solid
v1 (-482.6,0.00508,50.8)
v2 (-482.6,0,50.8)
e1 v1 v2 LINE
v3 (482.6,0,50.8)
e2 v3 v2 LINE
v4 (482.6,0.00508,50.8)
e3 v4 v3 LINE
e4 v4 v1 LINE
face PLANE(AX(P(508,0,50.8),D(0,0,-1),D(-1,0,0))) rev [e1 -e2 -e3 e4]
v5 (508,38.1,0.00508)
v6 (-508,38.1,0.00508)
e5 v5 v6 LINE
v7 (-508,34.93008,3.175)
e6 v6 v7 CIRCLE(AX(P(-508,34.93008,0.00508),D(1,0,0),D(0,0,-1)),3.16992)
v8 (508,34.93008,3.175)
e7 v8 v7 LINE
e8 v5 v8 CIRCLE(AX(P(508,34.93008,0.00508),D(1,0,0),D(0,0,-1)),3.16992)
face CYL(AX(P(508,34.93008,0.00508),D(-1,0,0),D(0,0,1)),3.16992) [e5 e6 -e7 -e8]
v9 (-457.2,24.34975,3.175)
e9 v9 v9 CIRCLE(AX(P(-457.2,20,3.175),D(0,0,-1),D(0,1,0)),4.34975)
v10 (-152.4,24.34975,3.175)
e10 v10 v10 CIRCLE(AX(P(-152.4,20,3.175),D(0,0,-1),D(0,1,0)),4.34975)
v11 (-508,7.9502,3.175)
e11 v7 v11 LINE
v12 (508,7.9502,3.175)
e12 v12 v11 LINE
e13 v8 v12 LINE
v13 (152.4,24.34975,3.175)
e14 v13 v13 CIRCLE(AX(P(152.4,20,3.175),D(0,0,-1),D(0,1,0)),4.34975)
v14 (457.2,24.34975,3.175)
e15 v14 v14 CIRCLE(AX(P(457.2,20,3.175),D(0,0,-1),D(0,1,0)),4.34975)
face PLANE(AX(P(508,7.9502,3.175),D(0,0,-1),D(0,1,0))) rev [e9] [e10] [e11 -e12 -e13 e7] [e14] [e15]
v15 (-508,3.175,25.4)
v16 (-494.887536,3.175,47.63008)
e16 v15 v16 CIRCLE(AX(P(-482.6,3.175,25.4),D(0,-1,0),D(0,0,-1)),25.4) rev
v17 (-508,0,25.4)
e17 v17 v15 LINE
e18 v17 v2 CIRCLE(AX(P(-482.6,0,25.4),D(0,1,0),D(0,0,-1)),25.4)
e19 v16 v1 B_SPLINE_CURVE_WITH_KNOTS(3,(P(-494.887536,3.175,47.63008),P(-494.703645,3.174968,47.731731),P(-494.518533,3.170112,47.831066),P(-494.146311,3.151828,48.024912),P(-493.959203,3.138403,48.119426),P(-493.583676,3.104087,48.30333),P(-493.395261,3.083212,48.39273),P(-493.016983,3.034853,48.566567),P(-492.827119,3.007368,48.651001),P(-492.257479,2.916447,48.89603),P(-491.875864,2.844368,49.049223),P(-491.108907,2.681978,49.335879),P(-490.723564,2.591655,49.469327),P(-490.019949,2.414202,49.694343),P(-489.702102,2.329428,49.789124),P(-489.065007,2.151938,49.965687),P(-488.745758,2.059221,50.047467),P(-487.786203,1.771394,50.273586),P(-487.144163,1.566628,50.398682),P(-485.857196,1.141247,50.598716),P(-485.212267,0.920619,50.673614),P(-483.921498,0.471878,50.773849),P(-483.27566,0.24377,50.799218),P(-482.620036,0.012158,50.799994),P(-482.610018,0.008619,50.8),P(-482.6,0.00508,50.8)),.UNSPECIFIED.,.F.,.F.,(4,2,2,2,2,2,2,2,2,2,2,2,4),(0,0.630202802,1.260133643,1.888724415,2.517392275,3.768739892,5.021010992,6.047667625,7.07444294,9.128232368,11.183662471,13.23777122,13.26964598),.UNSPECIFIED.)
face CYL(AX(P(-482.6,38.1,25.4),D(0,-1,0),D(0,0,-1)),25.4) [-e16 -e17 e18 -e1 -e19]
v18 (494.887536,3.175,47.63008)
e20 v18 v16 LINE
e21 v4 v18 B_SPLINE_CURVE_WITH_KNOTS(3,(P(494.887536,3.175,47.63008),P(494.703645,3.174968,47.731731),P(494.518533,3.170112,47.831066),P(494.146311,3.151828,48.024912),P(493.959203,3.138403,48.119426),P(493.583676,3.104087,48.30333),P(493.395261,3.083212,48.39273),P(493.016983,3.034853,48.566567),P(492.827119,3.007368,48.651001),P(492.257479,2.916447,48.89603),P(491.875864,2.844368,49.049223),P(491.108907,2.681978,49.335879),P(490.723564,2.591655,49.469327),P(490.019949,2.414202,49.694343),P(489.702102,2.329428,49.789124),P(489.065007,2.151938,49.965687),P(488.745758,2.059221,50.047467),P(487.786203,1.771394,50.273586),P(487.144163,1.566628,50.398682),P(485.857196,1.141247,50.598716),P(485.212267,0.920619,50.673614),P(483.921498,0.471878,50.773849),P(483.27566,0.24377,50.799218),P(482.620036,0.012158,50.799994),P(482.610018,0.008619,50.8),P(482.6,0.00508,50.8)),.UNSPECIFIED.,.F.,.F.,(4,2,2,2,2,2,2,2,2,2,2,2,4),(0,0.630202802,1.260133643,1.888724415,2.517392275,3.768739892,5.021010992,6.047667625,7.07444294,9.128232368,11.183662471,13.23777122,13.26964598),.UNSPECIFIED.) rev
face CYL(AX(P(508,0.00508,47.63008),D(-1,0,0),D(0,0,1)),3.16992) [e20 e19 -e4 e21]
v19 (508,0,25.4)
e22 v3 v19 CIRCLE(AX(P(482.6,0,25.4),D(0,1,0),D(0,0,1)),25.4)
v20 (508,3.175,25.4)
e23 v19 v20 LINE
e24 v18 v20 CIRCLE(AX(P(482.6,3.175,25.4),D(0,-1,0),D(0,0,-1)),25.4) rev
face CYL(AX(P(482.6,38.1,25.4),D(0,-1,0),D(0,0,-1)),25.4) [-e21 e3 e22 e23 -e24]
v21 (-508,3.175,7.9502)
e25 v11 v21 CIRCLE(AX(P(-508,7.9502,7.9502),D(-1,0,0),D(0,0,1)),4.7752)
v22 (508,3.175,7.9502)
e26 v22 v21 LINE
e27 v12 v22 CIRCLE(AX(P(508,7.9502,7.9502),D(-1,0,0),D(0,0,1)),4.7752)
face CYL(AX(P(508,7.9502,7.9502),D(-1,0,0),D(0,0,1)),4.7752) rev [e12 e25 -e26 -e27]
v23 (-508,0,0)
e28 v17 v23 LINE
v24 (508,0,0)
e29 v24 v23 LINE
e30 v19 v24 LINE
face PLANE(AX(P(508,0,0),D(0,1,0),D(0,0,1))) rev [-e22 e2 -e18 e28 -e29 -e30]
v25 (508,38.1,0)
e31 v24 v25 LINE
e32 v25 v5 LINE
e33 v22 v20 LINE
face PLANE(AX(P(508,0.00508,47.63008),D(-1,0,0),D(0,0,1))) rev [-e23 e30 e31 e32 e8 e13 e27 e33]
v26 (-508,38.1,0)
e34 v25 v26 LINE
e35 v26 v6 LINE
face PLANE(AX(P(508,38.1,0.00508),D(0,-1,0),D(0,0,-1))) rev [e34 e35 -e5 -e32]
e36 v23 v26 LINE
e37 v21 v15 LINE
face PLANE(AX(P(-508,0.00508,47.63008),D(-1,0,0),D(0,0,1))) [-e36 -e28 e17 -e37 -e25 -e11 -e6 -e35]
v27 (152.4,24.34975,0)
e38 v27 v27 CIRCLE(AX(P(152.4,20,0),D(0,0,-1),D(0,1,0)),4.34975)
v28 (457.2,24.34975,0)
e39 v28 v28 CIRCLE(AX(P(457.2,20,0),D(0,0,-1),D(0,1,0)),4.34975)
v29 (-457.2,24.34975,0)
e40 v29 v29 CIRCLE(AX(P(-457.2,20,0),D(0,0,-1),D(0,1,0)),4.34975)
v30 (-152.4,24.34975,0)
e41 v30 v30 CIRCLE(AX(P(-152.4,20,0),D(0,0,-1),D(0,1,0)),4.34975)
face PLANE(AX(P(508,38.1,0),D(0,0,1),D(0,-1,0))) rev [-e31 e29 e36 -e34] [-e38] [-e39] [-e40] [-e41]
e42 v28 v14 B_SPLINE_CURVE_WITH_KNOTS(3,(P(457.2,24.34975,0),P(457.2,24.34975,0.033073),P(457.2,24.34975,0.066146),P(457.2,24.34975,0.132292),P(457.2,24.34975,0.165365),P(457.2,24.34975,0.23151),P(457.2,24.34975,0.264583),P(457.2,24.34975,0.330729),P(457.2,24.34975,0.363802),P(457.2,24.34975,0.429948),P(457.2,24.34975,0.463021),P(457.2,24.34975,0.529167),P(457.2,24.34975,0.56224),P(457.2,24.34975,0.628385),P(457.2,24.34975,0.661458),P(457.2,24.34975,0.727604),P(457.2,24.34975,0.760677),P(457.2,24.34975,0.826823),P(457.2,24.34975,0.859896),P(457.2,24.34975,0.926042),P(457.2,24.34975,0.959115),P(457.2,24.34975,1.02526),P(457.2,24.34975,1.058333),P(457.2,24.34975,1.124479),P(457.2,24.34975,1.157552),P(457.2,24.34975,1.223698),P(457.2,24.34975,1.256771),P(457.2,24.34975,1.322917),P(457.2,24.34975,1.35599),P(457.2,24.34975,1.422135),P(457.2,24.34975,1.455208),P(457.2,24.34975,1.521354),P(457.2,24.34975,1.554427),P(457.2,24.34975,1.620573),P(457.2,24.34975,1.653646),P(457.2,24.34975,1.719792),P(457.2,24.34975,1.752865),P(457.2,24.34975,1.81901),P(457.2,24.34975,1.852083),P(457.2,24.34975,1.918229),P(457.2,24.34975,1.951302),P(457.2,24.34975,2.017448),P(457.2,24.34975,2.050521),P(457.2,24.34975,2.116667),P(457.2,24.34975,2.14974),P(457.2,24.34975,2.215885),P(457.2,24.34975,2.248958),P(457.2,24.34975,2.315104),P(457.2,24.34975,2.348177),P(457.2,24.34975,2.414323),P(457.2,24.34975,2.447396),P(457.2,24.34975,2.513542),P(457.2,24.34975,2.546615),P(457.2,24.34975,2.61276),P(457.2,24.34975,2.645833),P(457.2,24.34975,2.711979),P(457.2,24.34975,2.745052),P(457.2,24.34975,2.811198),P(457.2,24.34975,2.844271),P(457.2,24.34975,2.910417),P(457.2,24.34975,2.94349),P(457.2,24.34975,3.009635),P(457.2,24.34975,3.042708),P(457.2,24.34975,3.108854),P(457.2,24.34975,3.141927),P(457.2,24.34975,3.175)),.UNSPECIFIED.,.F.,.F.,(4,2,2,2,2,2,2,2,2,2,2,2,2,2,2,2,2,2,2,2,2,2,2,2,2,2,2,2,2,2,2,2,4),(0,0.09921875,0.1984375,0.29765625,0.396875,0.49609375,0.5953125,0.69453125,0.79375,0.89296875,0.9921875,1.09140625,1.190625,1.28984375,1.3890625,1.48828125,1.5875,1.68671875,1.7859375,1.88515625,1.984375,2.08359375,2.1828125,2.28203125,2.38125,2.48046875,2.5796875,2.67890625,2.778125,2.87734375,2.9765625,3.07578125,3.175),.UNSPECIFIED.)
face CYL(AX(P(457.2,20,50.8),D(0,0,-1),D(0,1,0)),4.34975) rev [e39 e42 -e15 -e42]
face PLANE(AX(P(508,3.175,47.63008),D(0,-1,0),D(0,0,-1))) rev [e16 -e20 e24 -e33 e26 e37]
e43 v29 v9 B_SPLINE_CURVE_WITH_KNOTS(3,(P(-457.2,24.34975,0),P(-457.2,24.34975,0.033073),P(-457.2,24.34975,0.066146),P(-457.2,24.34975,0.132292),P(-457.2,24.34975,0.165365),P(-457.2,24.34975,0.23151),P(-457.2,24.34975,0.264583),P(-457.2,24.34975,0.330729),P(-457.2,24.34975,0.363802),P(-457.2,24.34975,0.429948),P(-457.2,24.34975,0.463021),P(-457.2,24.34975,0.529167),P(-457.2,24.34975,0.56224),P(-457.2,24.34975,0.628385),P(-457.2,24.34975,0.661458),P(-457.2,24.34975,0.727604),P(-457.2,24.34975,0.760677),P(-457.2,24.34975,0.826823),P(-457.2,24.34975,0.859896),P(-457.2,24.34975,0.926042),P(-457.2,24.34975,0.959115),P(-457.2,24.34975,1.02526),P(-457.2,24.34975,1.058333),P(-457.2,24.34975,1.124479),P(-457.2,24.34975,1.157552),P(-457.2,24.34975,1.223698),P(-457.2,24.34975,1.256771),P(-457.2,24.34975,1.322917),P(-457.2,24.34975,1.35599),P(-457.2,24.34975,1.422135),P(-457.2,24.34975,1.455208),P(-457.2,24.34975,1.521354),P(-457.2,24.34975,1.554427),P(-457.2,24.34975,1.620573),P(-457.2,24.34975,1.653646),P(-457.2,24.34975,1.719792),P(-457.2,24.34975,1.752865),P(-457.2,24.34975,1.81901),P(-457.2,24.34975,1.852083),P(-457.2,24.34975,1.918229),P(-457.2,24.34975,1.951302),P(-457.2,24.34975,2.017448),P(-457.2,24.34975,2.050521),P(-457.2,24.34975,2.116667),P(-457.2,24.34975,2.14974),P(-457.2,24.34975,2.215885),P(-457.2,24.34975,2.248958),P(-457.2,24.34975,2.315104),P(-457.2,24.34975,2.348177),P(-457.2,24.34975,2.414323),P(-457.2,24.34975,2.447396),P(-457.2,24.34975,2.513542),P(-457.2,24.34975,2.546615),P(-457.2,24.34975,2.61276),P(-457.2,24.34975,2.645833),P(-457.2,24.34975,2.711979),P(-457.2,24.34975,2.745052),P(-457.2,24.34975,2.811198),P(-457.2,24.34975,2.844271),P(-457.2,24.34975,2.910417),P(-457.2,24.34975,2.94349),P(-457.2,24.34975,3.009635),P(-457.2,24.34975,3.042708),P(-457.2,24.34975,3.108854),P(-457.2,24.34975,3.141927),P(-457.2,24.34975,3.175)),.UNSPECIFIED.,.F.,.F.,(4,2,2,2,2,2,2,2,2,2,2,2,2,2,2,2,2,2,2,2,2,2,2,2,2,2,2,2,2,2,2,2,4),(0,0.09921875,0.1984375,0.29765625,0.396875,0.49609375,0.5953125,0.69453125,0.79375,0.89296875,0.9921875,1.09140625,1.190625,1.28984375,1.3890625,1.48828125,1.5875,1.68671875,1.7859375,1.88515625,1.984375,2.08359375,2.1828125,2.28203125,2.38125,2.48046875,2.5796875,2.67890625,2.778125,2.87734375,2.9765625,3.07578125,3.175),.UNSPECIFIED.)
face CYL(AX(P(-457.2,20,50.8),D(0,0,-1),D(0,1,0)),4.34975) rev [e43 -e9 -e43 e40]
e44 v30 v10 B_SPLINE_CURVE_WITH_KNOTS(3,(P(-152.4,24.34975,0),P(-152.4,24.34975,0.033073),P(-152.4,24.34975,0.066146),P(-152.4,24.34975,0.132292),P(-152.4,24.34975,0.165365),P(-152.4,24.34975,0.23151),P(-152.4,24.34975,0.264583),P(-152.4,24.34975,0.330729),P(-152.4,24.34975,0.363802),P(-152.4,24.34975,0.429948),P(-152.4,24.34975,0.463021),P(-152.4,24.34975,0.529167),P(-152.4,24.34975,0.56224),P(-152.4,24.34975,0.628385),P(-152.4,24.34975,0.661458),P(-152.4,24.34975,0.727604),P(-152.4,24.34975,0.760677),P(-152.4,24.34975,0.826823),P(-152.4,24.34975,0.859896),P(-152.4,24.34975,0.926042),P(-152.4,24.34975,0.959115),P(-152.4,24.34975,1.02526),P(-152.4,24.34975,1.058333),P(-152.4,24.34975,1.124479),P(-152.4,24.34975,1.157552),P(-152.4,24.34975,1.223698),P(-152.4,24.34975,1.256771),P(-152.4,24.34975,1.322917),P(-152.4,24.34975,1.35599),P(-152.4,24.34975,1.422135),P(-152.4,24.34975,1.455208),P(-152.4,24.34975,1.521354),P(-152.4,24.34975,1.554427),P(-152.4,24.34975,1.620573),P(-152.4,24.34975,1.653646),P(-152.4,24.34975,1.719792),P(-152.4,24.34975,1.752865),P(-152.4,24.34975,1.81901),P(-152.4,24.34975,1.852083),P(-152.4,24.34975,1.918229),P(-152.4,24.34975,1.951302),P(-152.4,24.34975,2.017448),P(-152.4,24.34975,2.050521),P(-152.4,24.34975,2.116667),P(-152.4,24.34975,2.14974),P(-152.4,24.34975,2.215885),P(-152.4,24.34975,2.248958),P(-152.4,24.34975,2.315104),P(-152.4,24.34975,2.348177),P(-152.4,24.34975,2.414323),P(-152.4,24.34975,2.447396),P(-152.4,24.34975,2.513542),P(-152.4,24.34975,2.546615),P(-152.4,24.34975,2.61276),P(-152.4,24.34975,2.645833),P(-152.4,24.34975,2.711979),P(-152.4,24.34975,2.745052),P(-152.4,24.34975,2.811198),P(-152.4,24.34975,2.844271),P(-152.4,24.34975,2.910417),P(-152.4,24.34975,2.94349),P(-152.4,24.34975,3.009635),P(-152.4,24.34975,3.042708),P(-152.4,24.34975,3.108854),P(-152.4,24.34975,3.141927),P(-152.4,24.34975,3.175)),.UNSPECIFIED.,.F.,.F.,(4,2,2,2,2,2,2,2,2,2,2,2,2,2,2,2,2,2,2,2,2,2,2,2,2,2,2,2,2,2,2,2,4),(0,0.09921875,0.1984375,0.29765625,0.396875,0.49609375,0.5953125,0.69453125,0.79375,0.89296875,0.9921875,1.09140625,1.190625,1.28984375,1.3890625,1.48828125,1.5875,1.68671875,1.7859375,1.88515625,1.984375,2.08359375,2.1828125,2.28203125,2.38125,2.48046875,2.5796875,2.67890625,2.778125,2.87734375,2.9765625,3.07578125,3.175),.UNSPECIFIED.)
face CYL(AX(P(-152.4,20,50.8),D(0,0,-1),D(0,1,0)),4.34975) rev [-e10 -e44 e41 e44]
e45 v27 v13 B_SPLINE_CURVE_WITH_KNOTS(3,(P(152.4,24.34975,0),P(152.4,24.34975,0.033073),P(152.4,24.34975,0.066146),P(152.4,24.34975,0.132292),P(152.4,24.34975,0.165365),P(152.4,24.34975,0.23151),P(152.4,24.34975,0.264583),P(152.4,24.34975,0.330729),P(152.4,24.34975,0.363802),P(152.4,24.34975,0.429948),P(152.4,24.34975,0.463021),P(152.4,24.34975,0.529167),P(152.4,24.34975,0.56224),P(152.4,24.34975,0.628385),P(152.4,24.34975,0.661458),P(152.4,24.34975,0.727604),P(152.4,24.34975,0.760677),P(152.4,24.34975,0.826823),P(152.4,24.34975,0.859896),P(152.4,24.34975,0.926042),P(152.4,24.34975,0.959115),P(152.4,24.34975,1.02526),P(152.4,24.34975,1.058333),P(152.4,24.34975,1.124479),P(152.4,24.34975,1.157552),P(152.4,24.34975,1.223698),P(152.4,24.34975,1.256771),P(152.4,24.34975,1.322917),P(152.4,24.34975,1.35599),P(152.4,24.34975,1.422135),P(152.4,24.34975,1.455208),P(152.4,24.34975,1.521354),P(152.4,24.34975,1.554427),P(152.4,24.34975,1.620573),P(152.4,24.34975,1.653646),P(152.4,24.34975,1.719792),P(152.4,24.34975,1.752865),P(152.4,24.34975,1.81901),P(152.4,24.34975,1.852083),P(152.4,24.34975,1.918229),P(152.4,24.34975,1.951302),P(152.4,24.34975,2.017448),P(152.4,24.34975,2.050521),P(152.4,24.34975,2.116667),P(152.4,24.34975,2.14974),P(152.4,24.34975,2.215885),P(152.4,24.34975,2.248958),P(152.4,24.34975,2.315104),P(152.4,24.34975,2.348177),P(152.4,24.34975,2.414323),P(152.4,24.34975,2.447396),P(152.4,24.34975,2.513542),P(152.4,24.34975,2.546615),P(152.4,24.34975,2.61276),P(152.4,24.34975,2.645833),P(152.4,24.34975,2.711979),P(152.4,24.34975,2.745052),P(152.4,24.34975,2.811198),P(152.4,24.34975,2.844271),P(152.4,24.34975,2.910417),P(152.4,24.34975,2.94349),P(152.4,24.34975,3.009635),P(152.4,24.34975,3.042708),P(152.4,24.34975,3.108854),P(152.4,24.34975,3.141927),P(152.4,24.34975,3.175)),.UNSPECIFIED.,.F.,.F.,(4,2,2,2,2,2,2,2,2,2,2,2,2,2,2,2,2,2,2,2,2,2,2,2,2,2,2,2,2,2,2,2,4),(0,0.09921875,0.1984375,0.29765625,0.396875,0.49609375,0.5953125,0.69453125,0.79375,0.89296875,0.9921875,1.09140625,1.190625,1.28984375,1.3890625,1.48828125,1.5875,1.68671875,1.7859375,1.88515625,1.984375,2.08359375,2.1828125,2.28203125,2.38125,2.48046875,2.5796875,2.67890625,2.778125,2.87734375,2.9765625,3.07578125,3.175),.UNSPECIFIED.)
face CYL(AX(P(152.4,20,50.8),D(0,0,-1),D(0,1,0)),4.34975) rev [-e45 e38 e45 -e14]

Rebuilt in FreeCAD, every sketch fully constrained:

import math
import FreeCAD as App
import Part
import Sketcher

V = App.Vector
Q = App.Units.Quantity

doc = App.newDocument("Part")
body = doc.addObject("PartDesign::Body", "Body")

# Sketch on YZ plane
sketch1 = body.newObject("Sketcher::SketchObject", "Sketch")
sketch1.AttachmentSupport = (doc.getObject("YZ_Plane"), [""])
sketch1.MapMode = "FlatFace"
sketch1.AttachmentOffset = App.Placement(V(0, 0, -20 * 25.4), App.Rotation())
sketch1.addGeometry([
    Part.LineSegment(V(0, 50.8, 0), V(0, 0, 0)),  # 0
    Part.LineSegment(V(0, 0, 0), V(38.1, 0, 0)),  # 1
    Part.LineSegment(V(38.1, 0, 0), V(38.1, 0.005, 0)),  # 2
    Part.ArcOfCircle(Part.Circle(V(34.93, 0.005, 0), V(0, 0, 1), 3.17), math.radians(0), math.radians(90)),  # 3
    Part.LineSegment(V(34.93, 3.175, 0), V(7.95, 3.175, 0)),  # 4
    Part.ArcOfCircle(Part.Circle(V(7.95, 7.95, 0), V(0, 0, 1), 4.775), math.radians(180), math.radians(270)),  # 5
    Part.LineSegment(V(3.175, 7.95, 0), V(3.175, 47.63, 0)),  # 6
    Part.ArcOfCircle(Part.Circle(V(0.005, 47.63, 0), V(0, 0, 1), 3.17), math.radians(0), math.radians(90)),  # 7
    Part.LineSegment(V(0.005, 50.8, 0), V(0, 50.8, 0)),  # 8
], False)
sketch1.addConstraint([
    Sketcher.Constraint("Coincident", 0, 2, 1, 1),
    Sketcher.Constraint("Coincident", 1, 2, 2, 1),
    Sketcher.Constraint("Tangent", 2, 2, 3, 1),
    Sketcher.Constraint("Tangent", 3, 2, 4, 1),
    Sketcher.Constraint("Tangent", 4, 2, 5, 2),
    Sketcher.Constraint("Tangent", 5, 1, 6, 1),
    Sketcher.Constraint("Tangent", 6, 2, 7, 1),
    Sketcher.Constraint("Tangent", 7, 2, 8, 1),
    Sketcher.Constraint("Coincident", 8, 2, 0, 1),
    Sketcher.Constraint("Vertical", 0),
    Sketcher.Constraint("Horizontal", 1),
    Sketcher.Constraint("Horizontal", 4),
    Sketcher.Constraint("Vertical", 6),
    Sketcher.Constraint("Coincident", 0, 2, -1, 1),
    Sketcher.Constraint("Equal", 3, 7),
    Sketcher.Constraint("Horizontal", 3, 3, 2, 2),
    Sketcher.Constraint("Equal", 8, 2),
    Sketcher.Constraint("DistanceY", 0, 2, 0, 1, Q("2 in")),
    Sketcher.Constraint("DistanceX", 1, 1, 1, 2, Q("1.5 in")),
    Sketcher.Constraint("Radius", 5, Q("0.188 in")),
    Sketcher.Constraint("Radius", 3, Q("0.1248 in")),
    Sketcher.Constraint("DistanceX", 4, 2, 4, 1, Q("1.0622 in")),
    Sketcher.Constraint("DistanceX", 8, 2, 8, 1, Q("0.0002 in")),
])
pad1 = body.newObject("PartDesign::Pad", "Pad")
pad1.Profile = sketch1
pad1.Length = Q("40 in")

# Sketch on XZ plane
sketch2 = body.newObject("Sketcher::SketchObject", "Sketch001")
sketch2.AttachmentSupport = (doc.getObject("XZ_Plane"), [""])
sketch2.MapMode = "FlatFace"
sketch2.addGeometry([
    Part.LineSegment(V(-508, 51, 0), V(-508, 25, 0)),  # 0
    Part.ArcOfCircle(Part.Circle(V(-483, 25, 0), V(0, 0, 1), 25), math.radians(90), math.radians(180)),  # 1
    Part.LineSegment(V(-483, 51, 0), V(-508, 51, 0)),  # 2
    Part.LineSegment(V(508, 25, 0), V(508, 51, 0)),  # 3
    Part.LineSegment(V(508, 51, 0), V(483, 51, 0)),  # 4
    Part.ArcOfCircle(Part.Circle(V(483, 25, 0), V(0, 0, 1), 25), math.radians(0), math.radians(90)),  # 5
], False)
sketch2.addConstraint([
    Sketcher.Constraint("Tangent", 0, 2, 1, 2),
    Sketcher.Constraint("Tangent", 1, 1, 2, 1),
    Sketcher.Constraint("Coincident", 2, 2, 0, 1),
    Sketcher.Constraint("Coincident", 3, 2, 4, 1),
    Sketcher.Constraint("Tangent", 4, 2, 5, 2),
    Sketcher.Constraint("Tangent", 5, 1, 3, 1),
    Sketcher.Constraint("Vertical", 0),
    Sketcher.Constraint("Horizontal", 2),
    Sketcher.Constraint("Vertical", 3),
    Sketcher.Constraint("Horizontal", 4),
    Sketcher.Constraint("Equal", 1, 5),
    Sketcher.Constraint("Symmetric", 1, 3, 5, 3, -2),
    Sketcher.Constraint("Radius", 1, Q("1 in")),
    Sketcher.Constraint("DistanceX", 1, 3, -1, 1, Q("19 in")),
    Sketcher.Constraint("DistanceY", -1, 1, 1, 3, Q("1 in")),
])
pocket1 = body.newObject("PartDesign::Pocket", "Pocket")
pocket1.Profile = sketch2
pocket1.Type = "ThroughAll"

# Sketch on XY plane
sketch3 = body.newObject("Sketcher::SketchObject", "Sketch002")
sketch3.AttachmentSupport = (doc.getObject("XY_Plane"), [""])
sketch3.MapMode = "FlatFace"
sketch3.addGeometry([
    Part.Circle(V(-457.2, 20, 0), V(0, 0, 1), 4.3),
    Part.Circle(V(-152.4, 20, 0), V(0, 0, 1), 4.3),
    Part.Circle(V(152.4, 20, 0), V(0, 0, 1), 4.3),
    Part.Circle(V(457.2, 20, 0), V(0, 0, 1), 4.3),
], False)
sketch3.addConstraint([
    Sketcher.Constraint("Equal", 0, 1),
    Sketcher.Constraint("Equal", 1, 2),
    Sketcher.Constraint("Equal", 2, 3),
    Sketcher.Constraint("Symmetric", 1, 3, 2, 3, -2),
    Sketcher.Constraint("Symmetric", 0, 3, 3, 3, -2),
    Sketcher.Constraint("Horizontal", 0, 3, 1, 3),
    Sketcher.Constraint("DistanceX", 0, 3, -1, 1, Q("18 in")),
    Sketcher.Constraint("DistanceX", 1, 3, -1, 1, Q("6 in")),
    Sketcher.Constraint("Diameter", 0, Q("0.3425 in")),
    Sketcher.Constraint("DistanceY", -1, 1, 0, 3, Q("20 mm")),
])
pocket2 = body.newObject("PartDesign::Pocket", "Pocket001")
pocket2.Profile = sketch3
pocket2.Type = "ThroughAll"
pocket2.Reversed = True

doc.recompute()
